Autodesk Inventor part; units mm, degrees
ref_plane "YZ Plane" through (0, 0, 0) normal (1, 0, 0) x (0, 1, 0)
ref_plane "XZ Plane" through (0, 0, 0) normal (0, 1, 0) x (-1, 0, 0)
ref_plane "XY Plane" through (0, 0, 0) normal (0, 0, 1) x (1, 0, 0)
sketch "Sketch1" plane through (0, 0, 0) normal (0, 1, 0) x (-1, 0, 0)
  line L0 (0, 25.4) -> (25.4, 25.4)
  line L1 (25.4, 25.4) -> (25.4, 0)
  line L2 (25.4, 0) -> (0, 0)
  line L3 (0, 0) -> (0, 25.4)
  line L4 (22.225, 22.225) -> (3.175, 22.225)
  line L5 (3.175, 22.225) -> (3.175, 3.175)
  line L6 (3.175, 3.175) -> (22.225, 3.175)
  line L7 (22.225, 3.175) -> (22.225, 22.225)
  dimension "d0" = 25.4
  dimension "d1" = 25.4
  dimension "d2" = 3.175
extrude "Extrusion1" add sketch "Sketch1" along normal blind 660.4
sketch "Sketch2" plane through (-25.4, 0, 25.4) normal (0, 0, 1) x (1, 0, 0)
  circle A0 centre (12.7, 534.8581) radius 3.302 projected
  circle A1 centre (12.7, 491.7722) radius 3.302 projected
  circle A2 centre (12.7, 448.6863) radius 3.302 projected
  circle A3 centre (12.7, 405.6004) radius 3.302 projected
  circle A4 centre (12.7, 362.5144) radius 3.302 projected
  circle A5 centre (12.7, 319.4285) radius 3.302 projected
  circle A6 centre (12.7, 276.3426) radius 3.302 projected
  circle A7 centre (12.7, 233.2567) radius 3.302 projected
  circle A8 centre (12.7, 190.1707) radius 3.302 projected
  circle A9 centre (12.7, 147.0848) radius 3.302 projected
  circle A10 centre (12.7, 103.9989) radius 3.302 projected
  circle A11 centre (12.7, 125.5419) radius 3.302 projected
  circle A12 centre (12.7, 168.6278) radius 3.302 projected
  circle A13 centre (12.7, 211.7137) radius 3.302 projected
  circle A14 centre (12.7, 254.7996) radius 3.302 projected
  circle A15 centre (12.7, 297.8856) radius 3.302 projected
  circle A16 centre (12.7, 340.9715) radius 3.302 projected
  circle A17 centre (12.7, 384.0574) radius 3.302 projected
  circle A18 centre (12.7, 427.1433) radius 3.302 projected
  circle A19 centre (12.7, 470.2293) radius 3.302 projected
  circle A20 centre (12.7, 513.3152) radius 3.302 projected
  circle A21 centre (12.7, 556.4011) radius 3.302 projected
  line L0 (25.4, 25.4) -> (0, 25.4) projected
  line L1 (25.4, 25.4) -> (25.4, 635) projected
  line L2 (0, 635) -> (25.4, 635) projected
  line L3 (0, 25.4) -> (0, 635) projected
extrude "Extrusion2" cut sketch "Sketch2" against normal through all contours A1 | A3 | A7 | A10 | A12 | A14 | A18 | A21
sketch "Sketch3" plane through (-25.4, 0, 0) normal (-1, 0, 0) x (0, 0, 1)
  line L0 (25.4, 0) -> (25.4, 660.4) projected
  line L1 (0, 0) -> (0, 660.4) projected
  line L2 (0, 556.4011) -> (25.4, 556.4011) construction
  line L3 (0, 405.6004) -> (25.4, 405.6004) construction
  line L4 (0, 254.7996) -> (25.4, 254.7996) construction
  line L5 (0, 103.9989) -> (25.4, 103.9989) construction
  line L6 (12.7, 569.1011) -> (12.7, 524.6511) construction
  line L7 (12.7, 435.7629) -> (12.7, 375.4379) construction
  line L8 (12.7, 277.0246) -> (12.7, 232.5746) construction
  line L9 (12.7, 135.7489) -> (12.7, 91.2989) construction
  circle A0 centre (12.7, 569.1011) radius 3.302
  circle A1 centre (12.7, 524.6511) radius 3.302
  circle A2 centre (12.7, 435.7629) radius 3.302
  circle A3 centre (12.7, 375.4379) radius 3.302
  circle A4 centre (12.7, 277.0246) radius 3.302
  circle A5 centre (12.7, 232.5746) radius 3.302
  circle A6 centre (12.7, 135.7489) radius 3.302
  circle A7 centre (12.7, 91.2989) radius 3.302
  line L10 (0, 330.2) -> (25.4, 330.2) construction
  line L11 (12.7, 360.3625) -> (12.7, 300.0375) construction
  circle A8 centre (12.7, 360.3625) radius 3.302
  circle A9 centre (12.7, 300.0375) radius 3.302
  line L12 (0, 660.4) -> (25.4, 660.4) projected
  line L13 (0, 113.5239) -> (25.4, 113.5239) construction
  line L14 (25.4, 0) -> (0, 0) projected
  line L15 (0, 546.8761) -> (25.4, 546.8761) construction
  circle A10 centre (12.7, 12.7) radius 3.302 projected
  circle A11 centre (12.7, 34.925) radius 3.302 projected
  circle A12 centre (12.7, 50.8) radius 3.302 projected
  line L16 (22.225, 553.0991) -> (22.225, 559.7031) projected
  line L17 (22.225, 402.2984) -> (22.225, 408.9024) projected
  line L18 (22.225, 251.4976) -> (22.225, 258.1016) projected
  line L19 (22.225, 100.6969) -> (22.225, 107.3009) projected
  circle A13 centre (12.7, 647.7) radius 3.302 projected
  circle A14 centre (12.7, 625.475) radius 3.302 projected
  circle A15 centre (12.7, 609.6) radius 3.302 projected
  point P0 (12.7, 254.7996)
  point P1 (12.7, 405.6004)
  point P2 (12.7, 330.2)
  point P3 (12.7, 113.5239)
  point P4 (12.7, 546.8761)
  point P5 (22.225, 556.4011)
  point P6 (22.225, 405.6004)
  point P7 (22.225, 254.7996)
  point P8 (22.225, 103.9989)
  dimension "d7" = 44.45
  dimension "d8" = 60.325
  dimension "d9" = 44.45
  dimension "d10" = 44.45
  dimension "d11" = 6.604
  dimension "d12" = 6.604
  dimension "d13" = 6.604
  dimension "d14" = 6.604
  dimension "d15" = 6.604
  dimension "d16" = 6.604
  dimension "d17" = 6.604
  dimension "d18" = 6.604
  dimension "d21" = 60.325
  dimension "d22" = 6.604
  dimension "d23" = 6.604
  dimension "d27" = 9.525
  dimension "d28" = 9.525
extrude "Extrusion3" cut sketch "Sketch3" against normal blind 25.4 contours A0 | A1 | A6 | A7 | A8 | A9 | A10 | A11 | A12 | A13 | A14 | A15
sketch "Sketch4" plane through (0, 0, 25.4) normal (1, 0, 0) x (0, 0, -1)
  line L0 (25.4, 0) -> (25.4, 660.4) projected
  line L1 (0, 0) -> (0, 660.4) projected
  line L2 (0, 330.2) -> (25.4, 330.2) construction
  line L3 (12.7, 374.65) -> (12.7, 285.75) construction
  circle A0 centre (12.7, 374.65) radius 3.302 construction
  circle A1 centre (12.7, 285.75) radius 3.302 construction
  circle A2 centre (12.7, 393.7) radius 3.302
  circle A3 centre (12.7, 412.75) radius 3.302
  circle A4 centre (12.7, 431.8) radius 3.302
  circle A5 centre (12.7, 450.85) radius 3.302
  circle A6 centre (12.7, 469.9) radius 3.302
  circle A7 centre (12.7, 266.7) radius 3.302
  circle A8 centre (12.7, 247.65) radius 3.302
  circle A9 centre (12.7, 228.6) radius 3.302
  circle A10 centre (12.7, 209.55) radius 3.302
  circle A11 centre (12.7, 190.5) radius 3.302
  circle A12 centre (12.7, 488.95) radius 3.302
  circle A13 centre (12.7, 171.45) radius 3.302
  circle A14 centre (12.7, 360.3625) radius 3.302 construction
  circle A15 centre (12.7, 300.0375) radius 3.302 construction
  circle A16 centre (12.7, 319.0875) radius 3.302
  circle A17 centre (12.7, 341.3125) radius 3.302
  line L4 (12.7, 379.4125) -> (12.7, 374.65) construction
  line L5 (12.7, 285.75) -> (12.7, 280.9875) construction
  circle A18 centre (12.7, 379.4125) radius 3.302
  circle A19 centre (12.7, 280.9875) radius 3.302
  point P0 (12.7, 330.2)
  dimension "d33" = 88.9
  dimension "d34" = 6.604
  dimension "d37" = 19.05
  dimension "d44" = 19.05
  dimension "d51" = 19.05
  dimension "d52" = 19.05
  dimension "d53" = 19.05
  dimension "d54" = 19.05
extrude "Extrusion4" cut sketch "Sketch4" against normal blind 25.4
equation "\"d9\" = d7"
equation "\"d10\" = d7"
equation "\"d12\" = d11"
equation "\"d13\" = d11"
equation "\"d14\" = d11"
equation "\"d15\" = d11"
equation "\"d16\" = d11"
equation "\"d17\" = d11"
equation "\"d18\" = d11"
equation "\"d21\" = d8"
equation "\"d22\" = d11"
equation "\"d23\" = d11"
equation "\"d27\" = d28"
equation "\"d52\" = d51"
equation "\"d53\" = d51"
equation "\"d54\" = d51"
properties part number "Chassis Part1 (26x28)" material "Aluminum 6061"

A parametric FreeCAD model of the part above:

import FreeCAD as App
import Part
import Sketcher
Q = App.Units.Quantity

doc = App.newDocument("Part")
body = doc.addObject("PartDesign::Body", "Body")

# Sketch on XZ plane
sketch1 = body.newObject("Sketcher::SketchObject", "Sketch")
sketch1.AttachmentSupport = (doc.getObject("XZ_Plane"), [""])
sketch1.MapMode = "FlatFace"
sketch1.addGeometry([
    Part.LineSegment(App.Vector(-25, 25, 0), App.Vector(0, 25, 0)),  # 0
    Part.LineSegment(App.Vector(0, 25, 0), App.Vector(0, 0, 0)),  # 1
    Part.LineSegment(App.Vector(0, 0, 0), App.Vector(-25, 0, 0)),  # 2
    Part.LineSegment(App.Vector(-25, 0, 0), App.Vector(-25, 25, 0)),  # 3
    Part.LineSegment(App.Vector(-3, 22, 0), App.Vector(-22, 22, 0)),  # 4
    Part.LineSegment(App.Vector(-22, 22, 0), App.Vector(-22, 3, 0)),  # 5
    Part.LineSegment(App.Vector(-22, 3, 0), App.Vector(-3, 3, 0)),  # 6
    Part.LineSegment(App.Vector(-3, 3, 0), App.Vector(-3, 22, 0)),  # 7
], False)
sketch1.addConstraint([
    Sketcher.Constraint("Coincident", 0, 2, 1, 1),
    Sketcher.Constraint("Coincident", 1, 2, 2, 1),
    Sketcher.Constraint("Coincident", 2, 2, 3, 1),
    Sketcher.Constraint("Coincident", 3, 2, 0, 1),
    Sketcher.Constraint("Coincident", 4, 2, 5, 1),
    Sketcher.Constraint("Coincident", 5, 2, 6, 1),
    Sketcher.Constraint("Coincident", 6, 2, 7, 1),
    Sketcher.Constraint("Coincident", 7, 2, 4, 1),
    Sketcher.Constraint("Horizontal", 0),
    Sketcher.Constraint("Vertical", 1),
    Sketcher.Constraint("Horizontal", 2),
    Sketcher.Constraint("Vertical", 3),
    Sketcher.Constraint("Horizontal", 4),
    Sketcher.Constraint("Vertical", 5),
    Sketcher.Constraint("Horizontal", 6),
    Sketcher.Constraint("Vertical", 7),
    Sketcher.Constraint("Coincident", 1, 2, -1, 1),
    Sketcher.Constraint("Equal", 2, 1),
    Sketcher.Constraint("Equal", 6, 5),
    Sketcher.Constraint("DistanceX", 0, 1, 0, 2, Q("1 in")),
    Sketcher.Constraint("DistanceY", -1, 1, 5, 2, Q("0.125 in")),
    Sketcher.Constraint("DistanceX", 6, 2, -1, 1, Q("0.125 in")),
    Sketcher.Constraint("DistanceX", 3, 2, 4, 2, Q("0.125 in")),
])
pad1 = body.newObject("PartDesign::Pad", "Pad")
pad1.Profile = sketch1
pad1.Length = Q("26 in")
pad1.Reversed = True

# Sketch on XY plane
sketch2 = body.newObject("Sketcher::SketchObject", "Sketch001")
sketch2.AttachmentSupport = (doc.getObject("XY_Plane"), [""])
sketch2.MapMode = "FlatFace"
sketch2.AttachmentOffset = App.Placement(App.Vector(0, 0, 1 * 25.4), App.Rotation())
sketch2.addGeometry([
    Part.Circle(App.Vector(-12.7, 491.8, 0), App.Vector(0, 0, 1), 3.3),  # 0
    Part.Circle(App.Vector(-12.7, 405.6, 0), App.Vector(0, 0, 1), 3.3),  # 1
    Part.Circle(App.Vector(-12.7, 233.3, 0), App.Vector(0, 0, 1), 3.3),  # 2
    Part.Circle(App.Vector(-12.7, 104, 0), App.Vector(0, 0, 1), 3.3),  # 3
    Part.Circle(App.Vector(-12.7, 168.6, 0), App.Vector(0, 0, 1), 3.3),  # 4
    Part.Circle(App.Vector(-12.7, 254.8, 0), App.Vector(0, 0, 1), 3.3),  # 5
    Part.Circle(App.Vector(-12.7, 427.1, 0), App.Vector(0, 0, 1), 3.3),  # 6
    Part.Circle(App.Vector(-12.7, 556.4, 0), App.Vector(0, 0, 1), 3.3),  # 7
], False)
sketch2.addConstraint([
    Sketcher.Constraint("Equal", 0, 1),
    Sketcher.Constraint("Equal", 1, 2),
    Sketcher.Constraint("Equal", 2, 3),
    Sketcher.Constraint("Equal", 3, 4),
    Sketcher.Constraint("Equal", 4, 5),
    Sketcher.Constraint("Equal", 5, 6),
    Sketcher.Constraint("Equal", 6, 7),
    Sketcher.Constraint("Vertical", 0, 3, 1, 3),
    Sketcher.Constraint("Vertical", 1, 3, 2, 3),
    Sketcher.Constraint("Vertical", 2, 3, 3, 3),
    Sketcher.Constraint("Vertical", 3, 3, 4, 3),
    Sketcher.Constraint("Vertical", 4, 3, 5, 3),
    Sketcher.Constraint("Vertical", 5, 3, 6, 3),
    Sketcher.Constraint("Vertical", 6, 3, 7, 3),
    Sketcher.Constraint("Diameter", 0, Q("0.26 in")),
    Sketcher.Constraint("DistanceX", 0, 3, -1, 1, Q("0.5 in")),
    Sketcher.Constraint("DistanceY", -1, 1, 0, 3, Q("19.3611 in")),
    Sketcher.Constraint("DistanceY", -1, 1, 4, 3, Q("6.6389 in")),
    Sketcher.Constraint("DistanceY", 1, 3, 0, 3, Q("3.3926 in")),
    Sketcher.Constraint("DistanceY", 3, 3, 2, 3, Q("5.0889 in")),
    Sketcher.Constraint("DistanceY", 4, 3, 5, 3, Q("3.3926 in")),
    Sketcher.Constraint("DistanceY", 6, 3, 7, 3, Q("5.0889 in")),
    Sketcher.Constraint("DistanceY", -1, 1, 2, 3, Q("233.2567 mm")),
    Sketcher.Constraint("DistanceY", -1, 1, 6, 3, Q("427.1433 mm")),
])
pocket1 = body.newObject("PartDesign::Pocket", "Pocket")
pocket1.Profile = sketch2
pocket1.Type = "ThroughAll"

# Sketch on YZ plane
sketch3 = body.newObject("Sketcher::SketchObject", "Sketch002")
sketch3.AttachmentSupport = (doc.getObject("YZ_Plane"), [""])
sketch3.MapMode = "FlatFace"
sketch3.AttachmentOffset = App.Placement(App.Vector(0, 0, -1 * 25.4), App.Rotation())
sketch3.addGeometry([
    Part.Circle(App.Vector(569.1, 12.7, 0), App.Vector(0, 0, 1), 3.3),  # 0
    Part.Circle(App.Vector(524.7, 12.7, 0), App.Vector(0, 0, 1), 3.3),  # 1
    Part.Circle(App.Vector(135.7, 12.7, 0), App.Vector(0, 0, 1), 3.3),  # 2
    Part.Circle(App.Vector(91.3, 12.7, 0), App.Vector(0, 0, 1), 3.3),  # 3
    Part.Circle(App.Vector(360.4, 12.7, 0), App.Vector(0, 0, 1), 3.3),  # 4
    Part.Circle(App.Vector(300, 12.7, 0), App.Vector(0, 0, 1), 3.3),  # 5
    Part.Circle(App.Vector(12.7, 12.7, 0), App.Vector(0, 0, 1), 3.3),  # 6
    Part.Circle(App.Vector(34.9, 12.7, 0), App.Vector(0, 0, 1), 3.3),  # 7
    Part.Circle(App.Vector(50.8, 12.7, 0), App.Vector(0, 0, 1), 3.3),  # 8
    Part.Circle(App.Vector(647.7, 12.7, 0), App.Vector(0, 0, 1), 3.3),  # 9
    Part.Circle(App.Vector(625.5, 12.7, 0), App.Vector(0, 0, 1), 3.3),  # 10
    Part.Circle(App.Vector(609.6, 12.7, 0), App.Vector(0, 0, 1), 3.3),  # 11
], False)
sketch3.addConstraint([
    Sketcher.Constraint("Equal", 0, 1),
    Sketcher.Constraint("Equal", 1, 2),
    Sketcher.Constraint("Equal", 2, 3),
    Sketcher.Constraint("Equal", 3, 4),
    Sketcher.Constraint("Equal", 4, 5),
    Sketcher.Constraint("Equal", 5, 6),
    Sketcher.Constraint("Equal", 6, 7),
    Sketcher.Constraint("Equal", 7, 8),
    Sketcher.Constraint("Equal", 8, 9),
    Sketcher.Constraint("Equal", 9, 10),
    Sketcher.Constraint("Equal", 10, 11),
    Sketcher.Constraint("Horizontal", 0, 3, 1, 3),
    Sketcher.Constraint("Horizontal", 1, 3, 2, 3),
    Sketcher.Constraint("Horizontal", 2, 3, 3, 3),
    Sketcher.Constraint("Horizontal", 3, 3, 4, 3),
    Sketcher.Constraint("Horizontal", 4, 3, 5, 3),
    Sketcher.Constraint("Horizontal", 5, 3, 6, 3),
    Sketcher.Constraint("Horizontal", 6, 3, 7, 3),
    Sketcher.Constraint("Horizontal", 7, 3, 8, 3),
    Sketcher.Constraint("Horizontal", 8, 3, 9, 3),
    Sketcher.Constraint("Horizontal", 9, 3, 10, 3),
    Sketcher.Constraint("Horizontal", 10, 3, 11, 3),
    Sketcher.Constraint("Diameter", 0, Q("0.26 in")),
    Sketcher.Constraint("DistanceX", 1, 3, 0, 3, Q("1.75 in")),
    Sketcher.Constraint("DistanceX", 3, 3, 2, 3, Q("1.75 in")),
    Sketcher.Constraint("DistanceX", -1, 1, 8, 3, Q("2 in")),
    Sketcher.Constraint("DistanceX", -1, 1, 11, 3, Q("24 in")),
    Sketcher.Constraint("DistanceX", 5, 3, 4, 3, Q("2.375 in")),
    Sketcher.Constraint("DistanceY", -1, 1, 0, 3, Q("0.5 in")),
    Sketcher.Constraint("DistanceX", -1, 1, 6, 3, Q("0.5 in")),
    Sketcher.Constraint("DistanceX", -1, 1, 9, 3, Q("25.5 in")),
    Sketcher.Constraint("DistanceX", -1, 1, 4, 3, Q("14.1875 in")),
    Sketcher.Constraint("DistanceX", -1, 1, 7, 3, Q("1.375 in")),
    Sketcher.Constraint("DistanceX", -1, 1, 10, 3, Q("24.625 in")),
    Sketcher.Constraint("DistanceX", 2, 3, 1, 3, Q("15.3111 in")),
    Sketcher.Constraint("DistanceX", -1, 1, 0, 3, Q("569.101 mm")),
])
pocket2 = body.newObject("PartDesign::Pocket", "Pocket001")
pocket2.Profile = sketch3
pocket2.Length = Q("1 in")
pocket2.Reversed = True

# Sketch on YZ plane
sketch4 = body.newObject("Sketcher::SketchObject", "Sketch003")
sketch4.AttachmentSupport = (doc.getObject("YZ_Plane"), [""])
sketch4.MapMode = "FlatFace"
sketch4.addGeometry([
    Part.Circle(App.Vector(393.7, 12.7, 0), App.Vector(0, 0, 1), 3.3),  # 0
    Part.Circle(App.Vector(412.8, 12.7, 0), App.Vector(0, 0, 1), 3.3),  # 1
    Part.Circle(App.Vector(431.8, 12.7, 0), App.Vector(0, 0, 1), 3.3),  # 2
    Part.Circle(App.Vector(450.9, 12.7, 0), App.Vector(0, 0, 1), 3.3),  # 3
    Part.Circle(App.Vector(469.9, 12.7, 0), App.Vector(0, 0, 1), 3.3),  # 4
    Part.Circle(App.Vector(266.7, 12.7, 0), App.Vector(0, 0, 1), 3.3),  # 5
    Part.Circle(App.Vector(247.7, 12.7, 0), App.Vector(0, 0, 1), 3.3),  # 6
    Part.Circle(App.Vector(228.6, 12.7, 0), App.Vector(0, 0, 1), 3.3),  # 7
    Part.Circle(App.Vector(209.6, 12.7, 0), App.Vector(0, 0, 1), 3.3),  # 8
    Part.Circle(App.Vector(190.5, 12.7, 0), App.Vector(0, 0, 1), 3.3),  # 9
    Part.Circle(App.Vector(488.9, 12.7, 0), App.Vector(0, 0, 1), 3.3),  # 10
    Part.Circle(App.Vector(171.4, 12.7, 0), App.Vector(0, 0, 1), 3.3),  # 11
    Part.Circle(App.Vector(319.1, 12.7, 0), App.Vector(0, 0, 1), 3.3),  # 12
    Part.Circle(App.Vector(341.3, 12.7, 0), App.Vector(0, 0, 1), 3.3),  # 13
    Part.Circle(App.Vector(379.4, 12.7, 0), App.Vector(0, 0, 1), 3.3),  # 14
    Part.Circle(App.Vector(281, 12.7, 0), App.Vector(0, 0, 1), 3.3),  # 15
], False)
sketch4.addConstraint([
    Sketcher.Constraint("Equal", 0, 1),
    Sketcher.Constraint("Equal", 1, 2),
    Sketcher.Constraint("Equal", 2, 3),
    Sketcher.Constraint("Equal", 3, 4),
    Sketcher.Constraint("Equal", 4, 5),
    Sketcher.Constraint("Equal", 5, 6),
    Sketcher.Constraint("Equal", 6, 7),
    Sketcher.Constraint("Equal", 7, 8),
    Sketcher.Constraint("Equal", 8, 9),
    Sketcher.Constraint("Equal", 9, 10),
    Sketcher.Constraint("Equal", 10, 11),
    Sketcher.Constraint("Equal", 11, 12),
    Sketcher.Constraint("Equal", 12, 13),
    Sketcher.Constraint("Equal", 13, 14),
    Sketcher.Constraint("Equal", 14, 15),
    Sketcher.Constraint("Horizontal", 0, 3, 1, 3),
    Sketcher.Constraint("Horizontal", 1, 3, 2, 3),
    Sketcher.Constraint("Horizontal", 2, 3, 3, 3),
    Sketcher.Constraint("Horizontal", 3, 3, 4, 3),
    Sketcher.Constraint("Horizontal", 4, 3, 5, 3),
    Sketcher.Constraint("Horizontal", 5, 3, 6, 3),
    Sketcher.Constraint("Horizontal", 6, 3, 7, 3),
    Sketcher.Constraint("Horizontal", 7, 3, 8, 3),
    Sketcher.Constraint("Horizontal", 8, 3, 9, 3),
    Sketcher.Constraint("Horizontal", 9, 3, 10, 3),
    Sketcher.Constraint("Horizontal", 10, 3, 11, 3),
    Sketcher.Constraint("Horizontal", 11, 3, 12, 3),
    Sketcher.Constraint("Horizontal", 12, 3, 13, 3),
    Sketcher.Constraint("Horizontal", 13, 3, 14, 3),
    Sketcher.Constraint("Horizontal", 14, 3, 15, 3),
    Sketcher.Constraint("Diameter", 0, Q("0.26 in")),
    Sketcher.Constraint("DistanceX", 0, 3, 1, 3, Q("0.75 in")),
    Sketcher.Constraint("DistanceX", 1, 3, 2, 3, Q("0.75 in")),
    Sketcher.Constraint("DistanceX", 2, 3, 3, 3, Q("0.75 in")),
    Sketcher.Constraint("DistanceX", 3, 3, 4, 3, Q("0.75 in")),
    Sketcher.Constraint("DistanceX", 6, 3, 5, 3, Q("0.75 in")),
    Sketcher.Constraint("DistanceX", 7, 3, 6, 3, Q("0.75 in")),
    Sketcher.Constraint("DistanceX", 8, 3, 7, 3, Q("0.75 in")),
    Sketcher.Constraint("DistanceX", 9, 3, 8, 3, Q("0.75 in")),
    Sketcher.Constraint("DistanceX", 4, 3, 10, 3, Q("0.75 in")),
    Sketcher.Constraint("DistanceX", 11, 3, 9, 3, Q("0.75 in")),
    Sketcher.Constraint("DistanceX", -1, 1, 2, 3, Q("17 in")),
    Sketcher.Constraint("DistanceX", -1, 1, 7, 3, Q("9 in")),
    Sketcher.Constraint("DistanceY", -1, 1, 0, 3, Q("0.5 in")),
    Sketcher.Constraint("DistanceX", 13, 3, 14, 3, Q("1.5 in")),
    Sketcher.Constraint("DistanceX", 15, 3, 12, 3, Q("1.5 in")),
    Sketcher.Constraint("DistanceX", -1, 1, 12, 3, Q("12.5625 in")),
    Sketcher.Constraint("DistanceX", -1, 1, 13, 3, Q("13.4375 in")),
])
pocket3 = body.newObject("PartDesign::Pocket", "Pocket002")
pocket3.Profile = sketch4
pocket3.Length = Q("1 in")

doc.recompute()
